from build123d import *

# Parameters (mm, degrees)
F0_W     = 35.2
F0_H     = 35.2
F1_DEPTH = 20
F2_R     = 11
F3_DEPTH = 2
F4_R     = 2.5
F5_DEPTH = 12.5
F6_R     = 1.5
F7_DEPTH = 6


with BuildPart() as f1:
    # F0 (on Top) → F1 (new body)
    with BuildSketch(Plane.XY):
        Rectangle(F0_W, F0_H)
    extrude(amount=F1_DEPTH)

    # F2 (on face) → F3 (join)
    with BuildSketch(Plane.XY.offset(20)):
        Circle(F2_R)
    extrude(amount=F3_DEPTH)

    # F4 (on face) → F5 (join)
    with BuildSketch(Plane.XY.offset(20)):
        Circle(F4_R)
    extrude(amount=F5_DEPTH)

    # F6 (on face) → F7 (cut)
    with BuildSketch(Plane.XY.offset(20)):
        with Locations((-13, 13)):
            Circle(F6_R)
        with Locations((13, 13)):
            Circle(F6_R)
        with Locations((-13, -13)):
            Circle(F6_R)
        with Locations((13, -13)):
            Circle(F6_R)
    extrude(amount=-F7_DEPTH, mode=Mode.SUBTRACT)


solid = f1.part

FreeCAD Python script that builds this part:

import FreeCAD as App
import Part
import Sketcher
from FreeCAD import Vector
Q = App.Units.Quantity

doc = App.newDocument("Part")
body = doc.addObject("PartDesign::Body", "Body")

sketch1 = body.newObject("Sketcher::SketchObject", "Sketch")
sketch1.AttachmentSupport = (doc.getObject("XY_Plane"), [""])
sketch1.MapMode = "FlatFace"
sketch1.addGeometry(Part.LineSegment(Vector(-18, 18, 0), Vector(-18, -18, 0)), False)
sketch1.addGeometry(Part.LineSegment(Vector(-18, -18, 0), Vector(18, -18, 0)), False)
sketch1.addGeometry(Part.LineSegment(Vector(18, -18, 0), Vector(18, 18, 0)), False)
sketch1.addGeometry(Part.LineSegment(Vector(18, 18, 0), Vector(-18, 18, 0)), False)
sketch1.addConstraint(Sketcher.Constraint("Coincident", 0, 2, 1, 1))
sketch1.addConstraint(Sketcher.Constraint("Coincident", 1, 2, 2, 1))
sketch1.addConstraint(Sketcher.Constraint("Coincident", 2, 2, 3, 1))
sketch1.addConstraint(Sketcher.Constraint("Coincident", 3, 2, 0, 1))
sketch1.addConstraint(Sketcher.Constraint("Vertical", 0))
sketch1.addConstraint(Sketcher.Constraint("Horizontal", 1))
sketch1.addConstraint(Sketcher.Constraint("Vertical", 2))
sketch1.addConstraint(Sketcher.Constraint("Horizontal", 3))
sketch1.addConstraint(Sketcher.Constraint("Symmetric", 0, 2, 2, 2, -1, 1))
sketch1.addConstraint(Sketcher.Constraint("Equal", 3, 0))
sketch1.addConstraint(Sketcher.Constraint("DistanceX", 1, 1, 1, 2, Q("35.2 mm")))
pad1 = body.newObject("PartDesign::Pad", "Pad")
pad1.Profile = sketch1
pad1.Length = 20

sketch2 = body.newObject("Sketcher::SketchObject", "Sketch001")
sketch2.AttachmentSupport = (doc.getObject("XY_Plane"), [""])
sketch2.MapMode = "FlatFace"
sketch2.AttachmentOffset = App.Placement(Vector(0, 0, 20), App.Rotation())
sketch2.addGeometry(Part.Circle(Vector(0, 0, 0), Vector(0, 0, 1), 11), False)
sketch2.addConstraint(Sketcher.Constraint("Coincident", 0, 3, -1, 1))
sketch2.addConstraint(Sketcher.Constraint("Diameter", 0, Q("22 mm")))
pad2 = body.newObject("PartDesign::Pad", "Pad001")
pad2.Profile = sketch2
pad2.Length = 2

sketch3 = body.newObject("Sketcher::SketchObject", "Sketch002")
sketch3.AttachmentSupport = (doc.getObject("XY_Plane"), [""])
sketch3.MapMode = "FlatFace"
sketch3.AttachmentOffset = App.Placement(Vector(0, 0, 20), App.Rotation())
sketch3.addGeometry(Part.Circle(Vector(0, 0, 0), Vector(0, 0, 1), 2.5), False)
sketch3.addConstraint(Sketcher.Constraint("Coincident", 0, 3, -1, 1))
sketch3.addConstraint(Sketcher.Constraint("Diameter", 0, Q("5 mm")))
pad3 = body.newObject("PartDesign::Pad", "Pad002")
pad3.Profile = sketch3
pad3.Length = 12.5

sketch4 = body.newObject("Sketcher::SketchObject", "Sketch003")
sketch4.AttachmentSupport = (doc.getObject("XY_Plane"), [""])
sketch4.MapMode = "FlatFace"
sketch4.AttachmentOffset = App.Placement(Vector(0, 0, 20), App.Rotation())
sketch4.addGeometry(Part.Circle(Vector(-13, 13, 0), Vector(0, 0, 1), 1.5), False)
sketch4.addGeometry(Part.Circle(Vector(13, 13, 0), Vector(0, 0, 1), 1.5), False)
sketch4.addGeometry(Part.Circle(Vector(-13, -13, 0), Vector(0, 0, 1), 1.5), False)
sketch4.addGeometry(Part.Circle(Vector(13, -13, 0), Vector(0, 0, 1), 1.5), False)
sketch4.addConstraint(Sketcher.Constraint("Equal", 0, 1))
sketch4.addConstraint(Sketcher.Constraint("Equal", 1, 2))
sketch4.addConstraint(Sketcher.Constraint("Equal", 2, 3))
sketch4.addConstraint(Sketcher.Constraint("Symmetric", 1, 3, 2, 3, -1, 1))
sketch4.addConstraint(Sketcher.Constraint("Symmetric", 0, 3, 3, 3, -1, 1))
sketch4.addConstraint(Sketcher.Constraint("Symmetric", 0, 3, 1, 3, -2))
sketch4.addConstraint(Sketcher.Constraint("Diameter", 0, Q("3 mm")))
sketch4.addConstraint(Sketcher.Constraint("DistanceX", 0, 3, -1, 1, Q("13 mm")))
sketch4.addConstraint(Sketcher.Constraint("DistanceY", -1, 1, 0, 3, Q("13 mm")))
pocket1 = body.newObject("PartDesign::Pocket", "Pocket")
pocket1.Profile = sketch4
pocket1.Length = 6

doc.recompute()
